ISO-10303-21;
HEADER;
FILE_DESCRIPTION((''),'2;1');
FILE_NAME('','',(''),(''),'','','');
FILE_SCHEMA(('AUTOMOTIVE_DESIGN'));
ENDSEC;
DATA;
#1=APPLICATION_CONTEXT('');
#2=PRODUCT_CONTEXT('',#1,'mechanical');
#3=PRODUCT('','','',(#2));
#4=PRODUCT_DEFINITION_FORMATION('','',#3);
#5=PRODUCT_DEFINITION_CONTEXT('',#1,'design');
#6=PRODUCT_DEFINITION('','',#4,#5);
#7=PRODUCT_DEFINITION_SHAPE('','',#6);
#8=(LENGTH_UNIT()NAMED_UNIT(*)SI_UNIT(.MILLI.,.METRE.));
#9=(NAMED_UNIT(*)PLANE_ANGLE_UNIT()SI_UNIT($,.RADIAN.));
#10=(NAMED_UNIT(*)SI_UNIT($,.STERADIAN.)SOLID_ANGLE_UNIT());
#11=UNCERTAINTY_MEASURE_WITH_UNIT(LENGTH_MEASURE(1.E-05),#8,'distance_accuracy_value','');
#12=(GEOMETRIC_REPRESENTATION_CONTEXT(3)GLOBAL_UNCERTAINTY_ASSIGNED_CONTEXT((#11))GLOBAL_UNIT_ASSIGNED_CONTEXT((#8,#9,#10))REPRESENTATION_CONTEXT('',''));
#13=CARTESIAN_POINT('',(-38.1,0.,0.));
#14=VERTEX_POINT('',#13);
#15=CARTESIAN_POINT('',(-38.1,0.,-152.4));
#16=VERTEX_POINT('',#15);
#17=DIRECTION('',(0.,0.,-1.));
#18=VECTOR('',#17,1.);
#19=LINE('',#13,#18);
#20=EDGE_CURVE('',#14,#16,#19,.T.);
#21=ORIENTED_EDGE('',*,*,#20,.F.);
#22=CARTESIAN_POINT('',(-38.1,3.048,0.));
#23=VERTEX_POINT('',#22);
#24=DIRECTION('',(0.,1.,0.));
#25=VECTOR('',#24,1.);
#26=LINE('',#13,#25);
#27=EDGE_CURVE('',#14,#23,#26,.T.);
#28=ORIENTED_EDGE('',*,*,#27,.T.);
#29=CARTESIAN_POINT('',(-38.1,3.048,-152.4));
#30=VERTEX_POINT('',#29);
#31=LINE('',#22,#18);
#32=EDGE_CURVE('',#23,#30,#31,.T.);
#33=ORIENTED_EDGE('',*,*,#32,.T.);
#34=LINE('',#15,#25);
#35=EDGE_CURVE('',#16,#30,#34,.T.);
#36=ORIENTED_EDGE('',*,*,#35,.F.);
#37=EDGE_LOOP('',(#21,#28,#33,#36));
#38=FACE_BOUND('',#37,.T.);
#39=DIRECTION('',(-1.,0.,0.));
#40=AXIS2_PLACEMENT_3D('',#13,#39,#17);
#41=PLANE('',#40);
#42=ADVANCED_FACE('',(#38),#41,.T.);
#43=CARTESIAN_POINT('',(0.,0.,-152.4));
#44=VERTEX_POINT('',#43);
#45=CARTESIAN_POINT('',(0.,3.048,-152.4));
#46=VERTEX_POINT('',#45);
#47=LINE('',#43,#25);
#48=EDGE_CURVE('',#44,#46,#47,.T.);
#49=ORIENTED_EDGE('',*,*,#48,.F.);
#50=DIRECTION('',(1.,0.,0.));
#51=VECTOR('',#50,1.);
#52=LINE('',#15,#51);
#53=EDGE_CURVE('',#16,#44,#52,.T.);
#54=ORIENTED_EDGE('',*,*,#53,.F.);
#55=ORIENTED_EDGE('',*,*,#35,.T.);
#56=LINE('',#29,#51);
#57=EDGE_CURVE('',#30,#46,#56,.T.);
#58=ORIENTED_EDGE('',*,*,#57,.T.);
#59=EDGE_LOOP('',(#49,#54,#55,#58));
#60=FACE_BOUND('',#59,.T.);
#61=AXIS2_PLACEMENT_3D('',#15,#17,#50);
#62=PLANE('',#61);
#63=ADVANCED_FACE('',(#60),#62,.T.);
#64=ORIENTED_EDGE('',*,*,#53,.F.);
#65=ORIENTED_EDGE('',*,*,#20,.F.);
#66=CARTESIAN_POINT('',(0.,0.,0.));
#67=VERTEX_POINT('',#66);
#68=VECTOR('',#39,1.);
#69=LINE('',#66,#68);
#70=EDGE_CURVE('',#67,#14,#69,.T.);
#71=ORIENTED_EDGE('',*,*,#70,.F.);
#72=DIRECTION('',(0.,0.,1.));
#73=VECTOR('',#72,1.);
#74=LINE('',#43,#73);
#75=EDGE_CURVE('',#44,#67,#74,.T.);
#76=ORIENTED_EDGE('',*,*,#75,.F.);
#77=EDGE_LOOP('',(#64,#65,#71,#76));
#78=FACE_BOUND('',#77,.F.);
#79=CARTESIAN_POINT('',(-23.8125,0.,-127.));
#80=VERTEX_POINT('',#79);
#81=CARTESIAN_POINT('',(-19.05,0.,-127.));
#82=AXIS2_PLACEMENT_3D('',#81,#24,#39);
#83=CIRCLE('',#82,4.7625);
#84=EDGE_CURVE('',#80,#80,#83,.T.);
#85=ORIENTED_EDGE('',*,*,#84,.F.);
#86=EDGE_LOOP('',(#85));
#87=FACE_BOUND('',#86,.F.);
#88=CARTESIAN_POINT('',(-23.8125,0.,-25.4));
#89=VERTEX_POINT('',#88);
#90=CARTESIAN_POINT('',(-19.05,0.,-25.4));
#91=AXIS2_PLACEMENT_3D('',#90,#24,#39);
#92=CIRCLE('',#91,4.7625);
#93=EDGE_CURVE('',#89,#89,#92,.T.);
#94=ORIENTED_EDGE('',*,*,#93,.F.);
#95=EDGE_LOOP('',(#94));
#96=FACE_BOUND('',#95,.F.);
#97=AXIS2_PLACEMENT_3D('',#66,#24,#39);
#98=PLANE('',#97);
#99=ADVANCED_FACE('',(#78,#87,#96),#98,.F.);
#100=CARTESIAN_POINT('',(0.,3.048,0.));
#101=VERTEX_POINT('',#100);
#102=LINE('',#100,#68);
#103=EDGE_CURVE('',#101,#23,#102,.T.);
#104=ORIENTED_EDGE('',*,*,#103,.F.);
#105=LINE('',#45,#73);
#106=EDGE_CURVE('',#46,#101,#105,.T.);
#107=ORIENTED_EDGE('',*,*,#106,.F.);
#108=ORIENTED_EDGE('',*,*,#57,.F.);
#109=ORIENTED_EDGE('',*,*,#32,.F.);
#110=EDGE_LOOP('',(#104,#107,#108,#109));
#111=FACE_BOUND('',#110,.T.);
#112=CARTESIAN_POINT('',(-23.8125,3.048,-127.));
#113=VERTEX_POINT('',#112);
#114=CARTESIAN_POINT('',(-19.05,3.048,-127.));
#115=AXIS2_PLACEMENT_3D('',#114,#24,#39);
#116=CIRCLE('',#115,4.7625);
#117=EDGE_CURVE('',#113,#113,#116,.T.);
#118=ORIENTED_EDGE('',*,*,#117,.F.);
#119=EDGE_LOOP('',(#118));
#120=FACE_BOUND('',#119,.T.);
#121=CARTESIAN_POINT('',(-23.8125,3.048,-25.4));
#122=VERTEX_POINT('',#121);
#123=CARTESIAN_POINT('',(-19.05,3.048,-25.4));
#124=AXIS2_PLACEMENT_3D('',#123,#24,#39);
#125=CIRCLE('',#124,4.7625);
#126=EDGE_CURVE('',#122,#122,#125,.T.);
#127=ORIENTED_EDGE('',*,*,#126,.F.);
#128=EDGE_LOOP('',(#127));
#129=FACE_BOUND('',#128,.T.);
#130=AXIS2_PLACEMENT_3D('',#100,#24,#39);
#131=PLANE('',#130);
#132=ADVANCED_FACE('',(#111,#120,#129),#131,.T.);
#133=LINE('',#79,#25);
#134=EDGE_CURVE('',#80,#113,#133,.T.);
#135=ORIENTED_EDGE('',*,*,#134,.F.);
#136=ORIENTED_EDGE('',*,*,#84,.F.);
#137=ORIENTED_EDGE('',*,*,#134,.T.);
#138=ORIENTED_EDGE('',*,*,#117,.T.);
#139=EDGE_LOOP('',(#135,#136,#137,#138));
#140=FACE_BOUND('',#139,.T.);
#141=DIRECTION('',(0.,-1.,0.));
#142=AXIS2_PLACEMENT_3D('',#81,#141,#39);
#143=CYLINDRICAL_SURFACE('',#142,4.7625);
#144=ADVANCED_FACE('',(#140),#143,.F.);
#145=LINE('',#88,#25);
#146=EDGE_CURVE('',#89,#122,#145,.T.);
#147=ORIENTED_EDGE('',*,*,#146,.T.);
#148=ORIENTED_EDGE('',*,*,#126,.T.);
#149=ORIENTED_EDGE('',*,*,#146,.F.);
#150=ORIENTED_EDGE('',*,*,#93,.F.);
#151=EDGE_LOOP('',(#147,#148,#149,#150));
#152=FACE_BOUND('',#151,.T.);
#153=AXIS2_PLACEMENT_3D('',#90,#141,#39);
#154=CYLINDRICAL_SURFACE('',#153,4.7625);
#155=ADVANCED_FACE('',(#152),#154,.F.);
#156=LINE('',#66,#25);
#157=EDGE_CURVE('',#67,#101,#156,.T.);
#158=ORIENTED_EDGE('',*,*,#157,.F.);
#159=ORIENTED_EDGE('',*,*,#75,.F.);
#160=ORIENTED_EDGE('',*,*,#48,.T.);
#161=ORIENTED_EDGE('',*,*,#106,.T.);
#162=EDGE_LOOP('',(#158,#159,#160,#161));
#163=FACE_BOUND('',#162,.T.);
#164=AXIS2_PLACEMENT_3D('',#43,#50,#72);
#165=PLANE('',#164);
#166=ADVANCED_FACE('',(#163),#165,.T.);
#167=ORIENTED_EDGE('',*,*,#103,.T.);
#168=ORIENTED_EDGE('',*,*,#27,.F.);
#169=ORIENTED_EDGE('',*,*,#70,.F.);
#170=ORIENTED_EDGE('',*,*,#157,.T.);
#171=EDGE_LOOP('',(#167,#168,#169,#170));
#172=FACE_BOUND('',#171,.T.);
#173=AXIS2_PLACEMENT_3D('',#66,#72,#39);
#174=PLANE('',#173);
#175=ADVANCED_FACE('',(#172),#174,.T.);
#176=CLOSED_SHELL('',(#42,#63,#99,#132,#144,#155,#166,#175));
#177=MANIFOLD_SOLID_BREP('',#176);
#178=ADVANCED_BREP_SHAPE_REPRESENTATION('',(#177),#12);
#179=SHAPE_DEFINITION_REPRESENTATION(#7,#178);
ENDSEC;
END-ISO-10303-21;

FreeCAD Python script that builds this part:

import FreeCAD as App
import Part
import Sketcher
Q = App.Units.Quantity

doc = App.newDocument("Part")
body = doc.addObject("PartDesign::Body", "Body")

sketch1 = doc.addObject("Sketcher::SketchObject", "Sketch")
body.addObject(sketch1)
sketch1.AttachmentSupport = (doc.XZ_Plane, [""])
sketch1.MapMode = "FlatFace"
sketch1.addGeometry(Part.LineSegment(App.Vector(-38.1, 0, 0), App.Vector(0, 0, 0)), False)
sketch1.addGeometry(Part.LineSegment(App.Vector(0, 0, 0), App.Vector(0, -152.4, 0)), False)
sketch1.addGeometry(Part.LineSegment(App.Vector(0, -152.4, 0), App.Vector(-38.1, -152.4, 0)), False)
sketch1.addGeometry(Part.LineSegment(App.Vector(-38.1, -152.4, 0), App.Vector(-38.1, 0, 0)), False)
sketch1.addGeometry(Part.Circle(App.Vector(-19.1, -127, 0), App.Vector(0, 0, 1), 4.8), False)
sketch1.addGeometry(Part.Circle(App.Vector(-19.1, -25.4, 0), App.Vector(0, 0, 1), 4.8), False)
sketch1.addConstraint(Sketcher.Constraint("Coincident", 0, 2, 1, 1))
sketch1.addConstraint(Sketcher.Constraint("Coincident", 1, 2, 2, 1))
sketch1.addConstraint(Sketcher.Constraint("Coincident", 2, 2, 3, 1))
sketch1.addConstraint(Sketcher.Constraint("Coincident", 3, 2, 0, 1))
sketch1.addConstraint(Sketcher.Constraint("Horizontal", 0))
sketch1.addConstraint(Sketcher.Constraint("Vertical", 1))
sketch1.addConstraint(Sketcher.Constraint("Horizontal", 2))
sketch1.addConstraint(Sketcher.Constraint("Vertical", 3))
sketch1.addConstraint(Sketcher.Constraint("Coincident", 0, 2, -1, 1))
sketch1.addConstraint(Sketcher.Constraint("Equal", 4, 5))
sketch1.addConstraint(Sketcher.Constraint("Vertical", 4, 3, 5, 3))
sketch1.addConstraint(Sketcher.Constraint("DistanceY", 1, 2, 1, 1, Q("6 in")))
sketch1.addConstraint(Sketcher.Constraint("Diameter", 4, Q("0.375 in")))
sketch1.addConstraint(Sketcher.Constraint("DistanceX", 0, 1, 0, 2, Q("1.5 in")))
sketch1.addConstraint(Sketcher.Constraint("DistanceY", 4, 3, -1, 1, Q("5 in")))
sketch1.addConstraint(Sketcher.Constraint("DistanceY", 5, 3, -1, 1, Q("1 in")))
sketch1.addConstraint(Sketcher.Constraint("DistanceX", 4, 3, -1, 1, Q("0.75 in")))
pad1 = doc.addObject("PartDesign::Pad", "Pad")
body.addObject(pad1)
pad1.Profile = sketch1
pad1.Length = Q("0.12 in")
pad1.Reversed = True

doc.recompute()
